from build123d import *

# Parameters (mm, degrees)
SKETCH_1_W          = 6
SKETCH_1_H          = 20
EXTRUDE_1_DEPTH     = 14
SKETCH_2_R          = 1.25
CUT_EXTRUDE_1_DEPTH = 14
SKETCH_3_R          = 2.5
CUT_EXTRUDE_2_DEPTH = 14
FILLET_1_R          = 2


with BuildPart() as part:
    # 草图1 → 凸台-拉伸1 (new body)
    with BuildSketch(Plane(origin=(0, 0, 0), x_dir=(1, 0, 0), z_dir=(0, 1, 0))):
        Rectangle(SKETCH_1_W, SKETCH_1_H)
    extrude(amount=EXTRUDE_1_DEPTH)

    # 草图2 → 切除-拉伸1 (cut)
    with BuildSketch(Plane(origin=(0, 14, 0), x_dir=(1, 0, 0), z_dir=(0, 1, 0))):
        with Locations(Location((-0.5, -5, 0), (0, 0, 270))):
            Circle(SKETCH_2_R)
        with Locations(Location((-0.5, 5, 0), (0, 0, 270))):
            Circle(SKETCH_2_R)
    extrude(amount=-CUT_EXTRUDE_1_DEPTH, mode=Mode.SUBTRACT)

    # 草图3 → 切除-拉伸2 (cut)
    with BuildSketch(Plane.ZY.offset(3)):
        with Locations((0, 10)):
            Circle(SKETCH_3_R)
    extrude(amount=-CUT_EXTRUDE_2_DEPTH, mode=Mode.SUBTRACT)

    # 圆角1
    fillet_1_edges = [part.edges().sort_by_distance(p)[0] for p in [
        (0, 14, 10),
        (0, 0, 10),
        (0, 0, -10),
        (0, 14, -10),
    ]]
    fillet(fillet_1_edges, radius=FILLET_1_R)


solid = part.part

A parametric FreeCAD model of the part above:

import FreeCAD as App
import Part
import Sketcher
from FreeCAD import Vector


def edges_at(feature, points):
    """Names of the edges that pass closest to the given points."""
    edges = feature.Shape.Edges
    near = lambda p: min(range(len(edges)), key=lambda i: edges[i].distToShape(Part.Vertex(*p))[0])
    return sorted({f"Edge{near(p) + 1}" for p in points})


def add_polygon(sketch, points):
    """Adds a closed chain of lines whose ends are joined by coincident constraints."""
    first, n = sketch.GeometryCount, len(points)
    for a, b in zip(points, points[1:] + points[:1]):
        sketch.addGeometry(Part.LineSegment(App.Vector(*a, 0), App.Vector(*b, 0)), False)
    for i in range(n):
        sketch.addConstraint(Sketcher.Constraint("Coincident", first + i, 2, first + (i + 1) % n, 1))

doc = App.newDocument("Part")
body = doc.addObject("PartDesign::Body", "Body")

# Sketch on XZ plane
sketch1 = body.newObject("Sketcher::SketchObject", "Sketch")
sketch1.AttachmentSupport = (doc.getObject("XZ_Plane"), [""])
sketch1.MapMode = "FlatFace"
add_polygon(sketch1, [(-3, -10), (-3, 10), (3, 10), (3, -10)])  # lines 0-3
sketch1.addConstraint(Sketcher.Constraint("Vertical", 0))
sketch1.addConstraint(Sketcher.Constraint("Horizontal", 1))
sketch1.addConstraint(Sketcher.Constraint("Vertical", 2))
sketch1.addConstraint(Sketcher.Constraint("Horizontal", 3))
sketch1.addConstraint(Sketcher.Constraint("Symmetric", 0, 2, 2, 2, -1, 1))
sketch1.addConstraint(Sketcher.Constraint("DistanceX", 1, 1, 1, 2, 6.0))
sketch1.addConstraint(Sketcher.Constraint("DistanceY", 0, 1, 0, 2, 20.0))
pad1 = body.newObject("PartDesign::Pad", "Pad")
pad1.Profile = sketch1
pad1.Length = 14
pad1.Reversed = True

# Sketch on XZ plane
sketch2 = body.newObject("Sketcher::SketchObject", "Sketch001")
sketch2.AttachmentSupport = (doc.getObject("XZ_Plane"), [""])
sketch2.MapMode = "FlatFace"
sketch2.AttachmentOffset = App.Placement(Vector(0, 0, -14), App.Rotation())
sketch2.addGeometry(Part.Circle(Vector(-0.5, 5, 0), Vector(0, 0, 1), 1.2), False)
sketch2.addGeometry(Part.Circle(Vector(-0.5, -5, 0), Vector(0, 0, 1), 1.2), False)
sketch2.addConstraint(Sketcher.Constraint("Equal", 0, 1))
sketch2.addConstraint(Sketcher.Constraint("Symmetric", 0, 3, 1, 3, -1))
sketch2.addConstraint(Sketcher.Constraint("Diameter", 0, 2.5))
sketch2.addConstraint(Sketcher.Constraint("DistanceY", -1, 1, 0, 3, 5.0))
sketch2.addConstraint(Sketcher.Constraint("DistanceX", 0, 3, -1, 1, 0.5))
pocket1 = body.newObject("PartDesign::Pocket", "Pocket")
pocket1.Profile = sketch2
pocket1.Length = 14
pocket1.Reversed = True

# Sketch on YZ plane
sketch3 = body.newObject("Sketcher::SketchObject", "Sketch002")
sketch3.AttachmentSupport = (doc.getObject("YZ_Plane"), [""])
sketch3.MapMode = "FlatFace"
sketch3.AttachmentOffset = App.Placement(Vector(0, 0, -3), App.Rotation())
sketch3.addGeometry(Part.Circle(Vector(10, 0, 0), Vector(0, 0, 1), 2.5), False)
sketch3.addConstraint(Sketcher.Constraint("PointOnObject", 0, 3, -1))
sketch3.addConstraint(Sketcher.Constraint("Diameter", 0, 5.0))
sketch3.addConstraint(Sketcher.Constraint("DistanceX", -1, 1, 0, 3, 10.0))
pocket2 = body.newObject("PartDesign::Pocket", "Pocket001")
pocket2.Profile = sketch3
pocket2.Length = 14
pocket2.Reversed = True
doc.recompute()

fillet = body.newObject("PartDesign::Fillet", "Fillet")
fillet.Base = (pocket2, edges_at(pocket2, [
    (0, 14, 10),
    (0, 0, 10),
    (0, 0, -10),
    (0, 14, -10),
]))
fillet.Radius = 2

doc.recompute()
